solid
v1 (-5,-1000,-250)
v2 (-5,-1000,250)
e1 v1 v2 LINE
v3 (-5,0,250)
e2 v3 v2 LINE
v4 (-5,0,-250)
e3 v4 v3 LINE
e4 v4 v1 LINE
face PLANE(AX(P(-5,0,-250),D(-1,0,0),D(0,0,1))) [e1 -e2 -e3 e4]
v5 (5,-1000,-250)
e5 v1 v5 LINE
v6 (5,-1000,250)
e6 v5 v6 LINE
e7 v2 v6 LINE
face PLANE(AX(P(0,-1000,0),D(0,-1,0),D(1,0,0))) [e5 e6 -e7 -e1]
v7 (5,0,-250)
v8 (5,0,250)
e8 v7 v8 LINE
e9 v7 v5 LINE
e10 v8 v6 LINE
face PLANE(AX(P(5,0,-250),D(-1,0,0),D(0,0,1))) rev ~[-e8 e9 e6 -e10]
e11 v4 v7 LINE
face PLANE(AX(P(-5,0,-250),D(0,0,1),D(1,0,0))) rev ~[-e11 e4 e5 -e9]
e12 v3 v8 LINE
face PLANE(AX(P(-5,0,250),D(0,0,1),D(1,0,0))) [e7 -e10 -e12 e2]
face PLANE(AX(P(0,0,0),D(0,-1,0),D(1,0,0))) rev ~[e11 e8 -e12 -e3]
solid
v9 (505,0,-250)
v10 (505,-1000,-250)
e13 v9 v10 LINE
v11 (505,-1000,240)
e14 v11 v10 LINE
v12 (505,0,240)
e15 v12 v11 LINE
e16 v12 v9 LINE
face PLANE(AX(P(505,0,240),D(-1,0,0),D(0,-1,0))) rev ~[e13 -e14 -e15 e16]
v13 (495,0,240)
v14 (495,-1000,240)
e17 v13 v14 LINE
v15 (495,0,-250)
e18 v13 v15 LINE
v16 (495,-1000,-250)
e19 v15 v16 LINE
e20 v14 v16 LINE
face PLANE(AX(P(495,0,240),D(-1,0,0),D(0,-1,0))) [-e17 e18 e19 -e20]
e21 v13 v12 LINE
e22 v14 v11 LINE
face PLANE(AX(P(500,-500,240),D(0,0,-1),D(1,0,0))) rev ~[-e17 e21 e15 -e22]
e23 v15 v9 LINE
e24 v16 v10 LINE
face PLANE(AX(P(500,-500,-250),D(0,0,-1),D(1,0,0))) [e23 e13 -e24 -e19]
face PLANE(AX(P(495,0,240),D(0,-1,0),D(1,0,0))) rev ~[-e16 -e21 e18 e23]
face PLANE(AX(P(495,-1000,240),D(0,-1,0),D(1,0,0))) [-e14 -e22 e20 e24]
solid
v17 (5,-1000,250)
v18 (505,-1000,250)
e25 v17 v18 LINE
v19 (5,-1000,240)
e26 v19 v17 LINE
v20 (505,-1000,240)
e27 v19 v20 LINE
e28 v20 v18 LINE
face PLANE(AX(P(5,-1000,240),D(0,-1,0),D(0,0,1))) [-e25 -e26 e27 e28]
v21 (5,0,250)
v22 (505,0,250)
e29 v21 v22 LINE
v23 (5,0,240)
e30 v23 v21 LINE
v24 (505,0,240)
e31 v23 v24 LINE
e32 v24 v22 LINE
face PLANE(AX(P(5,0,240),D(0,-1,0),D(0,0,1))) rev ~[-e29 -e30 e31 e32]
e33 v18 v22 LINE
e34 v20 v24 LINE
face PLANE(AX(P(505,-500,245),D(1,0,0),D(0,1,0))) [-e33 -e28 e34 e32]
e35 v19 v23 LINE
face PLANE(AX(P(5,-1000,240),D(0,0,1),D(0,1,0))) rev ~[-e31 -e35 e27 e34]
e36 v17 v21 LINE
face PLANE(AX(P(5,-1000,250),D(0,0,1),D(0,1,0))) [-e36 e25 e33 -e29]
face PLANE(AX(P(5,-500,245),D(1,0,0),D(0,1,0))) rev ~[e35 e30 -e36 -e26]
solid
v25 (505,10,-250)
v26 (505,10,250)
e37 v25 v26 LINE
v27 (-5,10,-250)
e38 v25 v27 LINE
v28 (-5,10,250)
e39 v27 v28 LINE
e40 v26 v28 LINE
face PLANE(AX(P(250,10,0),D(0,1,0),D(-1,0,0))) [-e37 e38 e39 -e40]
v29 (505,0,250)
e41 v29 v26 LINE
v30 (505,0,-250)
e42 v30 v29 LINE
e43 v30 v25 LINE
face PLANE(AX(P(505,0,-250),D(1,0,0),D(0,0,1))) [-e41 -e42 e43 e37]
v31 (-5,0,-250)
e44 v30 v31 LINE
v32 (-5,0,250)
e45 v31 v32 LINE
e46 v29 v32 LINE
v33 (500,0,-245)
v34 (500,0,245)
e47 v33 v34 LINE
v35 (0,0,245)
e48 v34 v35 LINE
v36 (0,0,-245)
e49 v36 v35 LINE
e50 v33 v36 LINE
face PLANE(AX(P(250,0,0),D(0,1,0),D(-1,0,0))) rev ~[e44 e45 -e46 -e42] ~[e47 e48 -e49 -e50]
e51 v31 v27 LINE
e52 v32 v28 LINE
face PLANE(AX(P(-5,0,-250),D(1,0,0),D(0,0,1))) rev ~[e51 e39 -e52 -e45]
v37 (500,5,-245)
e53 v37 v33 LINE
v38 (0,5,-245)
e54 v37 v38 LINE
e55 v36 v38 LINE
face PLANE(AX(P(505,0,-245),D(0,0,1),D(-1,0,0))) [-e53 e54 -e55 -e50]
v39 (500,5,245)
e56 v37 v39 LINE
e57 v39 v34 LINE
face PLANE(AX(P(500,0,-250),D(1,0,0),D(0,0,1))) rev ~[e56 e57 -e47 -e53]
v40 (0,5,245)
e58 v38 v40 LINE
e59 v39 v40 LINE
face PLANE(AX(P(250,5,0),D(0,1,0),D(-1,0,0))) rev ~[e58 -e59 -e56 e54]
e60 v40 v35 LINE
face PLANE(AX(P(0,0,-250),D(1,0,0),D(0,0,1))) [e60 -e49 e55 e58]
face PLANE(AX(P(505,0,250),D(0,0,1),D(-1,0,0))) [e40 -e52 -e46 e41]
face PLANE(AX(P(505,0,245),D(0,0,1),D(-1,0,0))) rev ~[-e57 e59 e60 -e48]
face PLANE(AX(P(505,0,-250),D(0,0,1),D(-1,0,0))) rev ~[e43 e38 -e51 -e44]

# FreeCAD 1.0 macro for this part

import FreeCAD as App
import Part
import Sketcher
from FreeCAD import Vector


def faces_at(feature, points):
    """Names of the faces that lie closest to the given points."""
    faces = feature.Shape.Faces
    near = lambda p: min(range(len(faces)), key=lambda i: faces[i].distToShape(Part.Vertex(*p))[0])
    return sorted({f"Face{near(p) + 1}" for p in points})


def add_polygon(sketch, points):
    """Adds a closed chain of lines whose ends are joined by coincident constraints."""
    first, n = sketch.GeometryCount, len(points)
    for a, b in zip(points, points[1:] + points[:1]):
        sketch.addGeometry(Part.LineSegment(App.Vector(*a, 0), App.Vector(*b, 0)), False)
    for i in range(n):
        sketch.addConstraint(Sketcher.Constraint("Coincident", first + i, 2, first + (i + 1) % n, 1))

doc = App.newDocument("Part")
body = doc.addObject("PartDesign::Body", "Body")

# Sketch on XZ plane
sketch1 = body.newObject("Sketcher::SketchObject", "Sketch")
sketch1.AttachmentSupport = (doc.getObject("XZ_Plane"), [""])
sketch1.MapMode = "FlatFace"
add_polygon(sketch1, [(-5, 250), (-5, -250), (5, -250), (5, 250)])  # lines 0-3
sketch1.addConstraint(Sketcher.Constraint("Vertical", 0))
sketch1.addConstraint(Sketcher.Constraint("Horizontal", 1))
sketch1.addConstraint(Sketcher.Constraint("Vertical", 2))
sketch1.addConstraint(Sketcher.Constraint("Horizontal", 3))
sketch1.addConstraint(Sketcher.Constraint("Symmetric", 0, 2, 2, 2, -1, 1))
sketch1.addConstraint(Sketcher.Constraint("DistanceX", 1, 1, 1, 2, 10.0))
sketch1.addConstraint(Sketcher.Constraint("DistanceY", 0, 2, 0, 1, 500.0))
pad1 = body.newObject("PartDesign::Pad", "Pad")
pad1.Profile = sketch1
pad1.Length = 1000
body2 = doc.addObject("PartDesign::Body", "Body001")

# Sketch on YZ plane
sketch2 = body2.newObject("Sketcher::SketchObject", "Sketch001")
sketch2.AttachmentSupport = (doc.getObject("YZ_Plane001"), [""])
sketch2.MapMode = "FlatFace"
sketch2.AttachmentOffset = App.Placement(Vector(0, 0, 5), App.Rotation())
add_polygon(sketch2, [(-1000, 250), (-1000, 240), (0, 240), (0, 250)])  # lines 0-3
sketch2.addConstraint(Sketcher.Constraint("Vertical", 0))
sketch2.addConstraint(Sketcher.Constraint("Horizontal", 1))
sketch2.addConstraint(Sketcher.Constraint("Vertical", 2))
sketch2.addConstraint(Sketcher.Constraint("Horizontal", 3))
sketch2.addConstraint(Sketcher.Constraint("PointOnObject", 1, 2, -2))
sketch2.addConstraint(Sketcher.Constraint("DistanceX", 1, 1, 1, 2, 1000.0))
sketch2.addConstraint(Sketcher.Constraint("DistanceY", 0, 2, 0, 1, 10.0))
sketch2.addConstraint(Sketcher.Constraint("DistanceY", -1, 1, 0, 2, 240.0))
pad2 = body2.newObject("PartDesign::Pad", "Pad001")
pad2.Profile = sketch2
pad2.Length = 500
body3 = doc.addObject("PartDesign::Body", "Body002")

# Sketch on XY plane
sketch3 = body3.newObject("Sketcher::SketchObject", "Sketch002")
sketch3.AttachmentSupport = (doc.getObject("XY_Plane002"), [""])
sketch3.MapMode = "FlatFace"
sketch3.AttachmentOffset = App.Placement(Vector(0, 0, 240), App.Rotation())
add_polygon(sketch3, [(495, -1000), (495, 0), (505, 0), (505, -1000)])  # lines 0-3
sketch3.addConstraint(Sketcher.Constraint("Vertical", 0))
sketch3.addConstraint(Sketcher.Constraint("Horizontal", 1))
sketch3.addConstraint(Sketcher.Constraint("Vertical", 2))
sketch3.addConstraint(Sketcher.Constraint("Horizontal", 3))
sketch3.addConstraint(Sketcher.Constraint("PointOnObject", 0, 2, -1))
sketch3.addConstraint(Sketcher.Constraint("DistanceX", 1, 1, 1, 2, 10.0))
sketch3.addConstraint(Sketcher.Constraint("DistanceY", 0, 1, 0, 2, 1000.0))
sketch3.addConstraint(Sketcher.Constraint("DistanceX", -1, 1, 0, 2, 495.0))
pad3 = body3.newObject("PartDesign::Pad", "Pad002")
pad3.Profile = sketch3
pad3.Length = 490
pad3.Reversed = True
body4 = doc.addObject("PartDesign::Body", "Body003")

# Sketch on XZ plane
sketch4 = body4.newObject("Sketcher::SketchObject", "Sketch003")
sketch4.AttachmentSupport = (doc.getObject("XZ_Plane003"), [""])
sketch4.MapMode = "FlatFace"
add_polygon(sketch4, [(505, 250), (505, -250), (-5, -250), (-5, 250)])  # lines 0-3
sketch4.addConstraint(Sketcher.Constraint("Vertical", 0))
sketch4.addConstraint(Sketcher.Constraint("Horizontal", 1))
sketch4.addConstraint(Sketcher.Constraint("Vertical", 2))
sketch4.addConstraint(Sketcher.Constraint("Horizontal", 3))
sketch4.addConstraint(Sketcher.Constraint("DistanceX", 1, 2, 1, 1, 510.0))
sketch4.addConstraint(Sketcher.Constraint("DistanceY", 0, 2, 0, 1, 500.0))
sketch4.addConstraint(Sketcher.Constraint("DistanceX", -1, 1, 0, 2, 505.0))
sketch4.addConstraint(Sketcher.Constraint("DistanceY", 0, 2, -1, 1, 250.0))
pad4 = body4.newObject("PartDesign::Pad", "Pad003")
pad4.Profile = sketch4
pad4.Length = 10
pad4.Reversed = True
doc.recompute()

thickness = body4.newObject("PartDesign::Thickness", "Thickness")
thickness.Base = (pad4, faces_at(pad4, [(250, 0, 0)]))
thickness.Value = 5
thickness.Reversed = True
thickness.Join = "Arc"

doc.recompute()
